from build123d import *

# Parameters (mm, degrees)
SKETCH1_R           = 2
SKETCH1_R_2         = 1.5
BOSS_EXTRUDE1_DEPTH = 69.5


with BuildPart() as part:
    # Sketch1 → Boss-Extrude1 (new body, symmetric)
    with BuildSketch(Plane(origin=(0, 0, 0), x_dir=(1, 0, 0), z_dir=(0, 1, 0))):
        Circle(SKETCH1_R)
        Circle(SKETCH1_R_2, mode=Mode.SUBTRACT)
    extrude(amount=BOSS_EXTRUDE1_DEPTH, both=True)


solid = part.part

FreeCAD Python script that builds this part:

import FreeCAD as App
import Part
import Sketcher
from FreeCAD import Vector
Q = App.Units.Quantity

doc = App.newDocument("Part")
body = doc.addObject("PartDesign::Body", "Body")

# Sketch on XZ plane
sketch1 = body.newObject("Sketcher::SketchObject", "Sketch")
sketch1.AttachmentSupport = (doc.getObject("XZ_Plane"), [""])
sketch1.MapMode = "FlatFace"
sketch1.addGeometry(Part.Circle(Vector(0, 0, 0), Vector(0, 0, 1), 2), False)
sketch1.addGeometry(Part.Circle(Vector(0, 0, 0), Vector(0, 0, 1), 1.5), False)
sketch1.addConstraint(Sketcher.Constraint("Coincident", 0, 3, -1, 1))
sketch1.addConstraint(Sketcher.Constraint("Coincident", 1, 3, -1, 1))
sketch1.addConstraint(Sketcher.Constraint("Diameter", 0, Q("4 mm")))
sketch1.addConstraint(Sketcher.Constraint("Diameter", 1, Q("3 mm")))
pad1 = body.newObject("PartDesign::Pad", "Pad")
pad1.Profile = sketch1
pad1.Length = 139
pad1.Midplane = True

doc.recompute()
